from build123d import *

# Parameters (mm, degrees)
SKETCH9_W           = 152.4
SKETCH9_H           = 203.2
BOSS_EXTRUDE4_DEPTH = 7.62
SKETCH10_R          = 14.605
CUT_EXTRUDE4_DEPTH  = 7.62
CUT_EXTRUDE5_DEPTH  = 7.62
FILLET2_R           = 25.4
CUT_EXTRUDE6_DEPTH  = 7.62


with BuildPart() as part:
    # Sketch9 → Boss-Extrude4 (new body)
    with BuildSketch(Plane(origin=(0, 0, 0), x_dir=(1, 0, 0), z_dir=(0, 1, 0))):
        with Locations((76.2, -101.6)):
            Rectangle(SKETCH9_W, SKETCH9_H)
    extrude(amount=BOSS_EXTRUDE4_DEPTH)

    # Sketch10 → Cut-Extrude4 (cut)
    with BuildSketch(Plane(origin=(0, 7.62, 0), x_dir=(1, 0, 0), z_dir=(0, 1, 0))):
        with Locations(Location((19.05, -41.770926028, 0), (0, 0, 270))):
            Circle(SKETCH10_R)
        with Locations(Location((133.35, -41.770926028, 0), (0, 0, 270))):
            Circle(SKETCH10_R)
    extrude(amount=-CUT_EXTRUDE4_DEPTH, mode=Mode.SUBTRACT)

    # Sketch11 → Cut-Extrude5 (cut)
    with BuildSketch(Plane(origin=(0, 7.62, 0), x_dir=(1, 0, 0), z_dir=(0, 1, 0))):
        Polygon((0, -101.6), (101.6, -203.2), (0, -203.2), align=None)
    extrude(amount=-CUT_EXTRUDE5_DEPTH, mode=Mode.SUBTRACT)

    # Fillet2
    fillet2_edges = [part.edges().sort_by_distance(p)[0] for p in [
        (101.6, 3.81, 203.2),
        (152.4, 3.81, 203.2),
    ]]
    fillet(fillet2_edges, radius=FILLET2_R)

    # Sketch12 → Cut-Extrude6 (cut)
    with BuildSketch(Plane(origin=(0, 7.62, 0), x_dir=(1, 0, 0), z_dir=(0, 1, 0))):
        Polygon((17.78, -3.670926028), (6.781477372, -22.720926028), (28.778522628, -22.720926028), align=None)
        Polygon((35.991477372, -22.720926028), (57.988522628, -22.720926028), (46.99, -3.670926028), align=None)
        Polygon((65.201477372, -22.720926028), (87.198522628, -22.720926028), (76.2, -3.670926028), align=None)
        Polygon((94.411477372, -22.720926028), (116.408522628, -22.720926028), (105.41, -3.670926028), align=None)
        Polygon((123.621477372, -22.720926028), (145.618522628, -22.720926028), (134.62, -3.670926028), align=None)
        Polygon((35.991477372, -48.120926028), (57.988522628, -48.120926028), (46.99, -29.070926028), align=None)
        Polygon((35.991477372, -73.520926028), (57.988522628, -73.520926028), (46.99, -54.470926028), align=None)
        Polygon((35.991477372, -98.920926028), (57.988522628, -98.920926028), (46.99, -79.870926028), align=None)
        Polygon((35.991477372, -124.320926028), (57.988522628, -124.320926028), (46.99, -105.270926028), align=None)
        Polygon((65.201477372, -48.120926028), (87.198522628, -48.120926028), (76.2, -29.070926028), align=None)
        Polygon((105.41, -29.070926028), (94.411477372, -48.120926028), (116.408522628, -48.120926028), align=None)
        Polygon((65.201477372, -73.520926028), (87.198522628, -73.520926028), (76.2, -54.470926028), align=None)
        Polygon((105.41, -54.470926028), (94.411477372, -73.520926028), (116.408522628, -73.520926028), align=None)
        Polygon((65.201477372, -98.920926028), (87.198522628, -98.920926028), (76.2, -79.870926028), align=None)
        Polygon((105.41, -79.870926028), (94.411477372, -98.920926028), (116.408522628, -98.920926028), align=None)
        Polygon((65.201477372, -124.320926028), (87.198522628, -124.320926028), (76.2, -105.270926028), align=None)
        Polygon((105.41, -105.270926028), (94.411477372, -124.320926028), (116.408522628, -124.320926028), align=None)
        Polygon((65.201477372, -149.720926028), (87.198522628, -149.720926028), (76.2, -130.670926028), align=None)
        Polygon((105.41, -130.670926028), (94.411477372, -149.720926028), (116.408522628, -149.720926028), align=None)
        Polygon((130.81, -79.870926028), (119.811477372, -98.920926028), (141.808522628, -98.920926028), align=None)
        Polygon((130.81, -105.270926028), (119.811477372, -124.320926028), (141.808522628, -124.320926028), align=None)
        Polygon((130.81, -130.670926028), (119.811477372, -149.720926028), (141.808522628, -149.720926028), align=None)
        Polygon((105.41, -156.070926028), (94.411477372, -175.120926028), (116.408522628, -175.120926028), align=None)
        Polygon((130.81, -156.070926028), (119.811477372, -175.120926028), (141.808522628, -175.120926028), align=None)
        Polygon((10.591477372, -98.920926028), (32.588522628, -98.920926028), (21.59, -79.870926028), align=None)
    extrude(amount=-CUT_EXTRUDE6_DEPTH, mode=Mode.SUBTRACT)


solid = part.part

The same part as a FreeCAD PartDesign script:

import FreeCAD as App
import Part
import Sketcher

V = App.Vector
Q = App.Units.Quantity


def edges_at(feature, points):
    """Names of the edges that pass closest to the given points."""
    edges = feature.Shape.Edges
    near = lambda p: min(range(len(edges)), key=lambda i: edges[i].distToShape(Part.Vertex(*p))[0])
    return sorted({f"Edge{near(p) + 1}" for p in points})


def add_polygon(sketch, points):
    """Adds a closed chain of lines whose ends are joined by coincident constraints."""
    first, n = sketch.GeometryCount, len(points)
    for a, b in zip(points, points[1:] + points[:1]):
        sketch.addGeometry(Part.LineSegment(App.Vector(*a, 0), App.Vector(*b, 0)), False)
    for i in range(n):
        sketch.addConstraint(Sketcher.Constraint("Coincident", first + i, 2, first + (i + 1) % n, 1))

doc = App.newDocument("Part")
params = doc.addObject("Spreadsheet::Sheet", "Params")
for row, (alias, value) in enumerate([
    ("sketch1_width", "6 in"),
    ("sketch1_height", "8 in"),
    ("pad1_length", "0.3 in"),
    ("sketch2_diameter", "1.15 in"),
    ("pocket1_length", "0.3 in"),
    ("sketch3_width", "4 in"),
    ("pocket2_length", "0.3 in"),
    ("fillet_radius", "1 in"),
    ("pocket3_length", "0.3 in"),
], start=1):
    params.set(f"A{row}", alias)
    params.set(f"B{row}", "=" + value)
    params.setAlias(f"B{row}", alias)

body = doc.addObject("PartDesign::Body", "Body")

# Sketch on XZ plane
sketch1 = body.newObject("Sketcher::SketchObject", "Sketch")
sketch1.AttachmentSupport = (doc.getObject("XZ_Plane"), [""])
sketch1.MapMode = "FlatFace"
add_polygon(sketch1, [(0, 0), (0, 203), (152, 203), (152, 0)])  # lines 0-3
sketch1.addConstraint([
    Sketcher.Constraint("Vertical", 0),
    Sketcher.Constraint("Horizontal", 1),
    Sketcher.Constraint("Vertical", 2),
    Sketcher.Constraint("Horizontal", 3),
    Sketcher.Constraint("Coincident", 3, 2, -1, 1),
    Sketcher.Constraint("DistanceX", 1, 1, 1, 2, Q("6 in")),
    Sketcher.Constraint("DistanceY", 0, 1, 0, 2, Q("8 in")),
])
sketch1.setExpression("Constraints[9]", "Params.sketch1_width")
sketch1.setExpression("Constraints[10]", "Params.sketch1_height")
pad1 = body.newObject("PartDesign::Pad", "Pad")
pad1.Profile = sketch1
pad1.setExpression("Length", "Params.pad1_length")
pad1.Reversed = True

# Sketch on XZ plane
sketch2 = body.newObject("Sketcher::SketchObject", "Sketch001")
sketch2.AttachmentSupport = (doc.getObject("XZ_Plane"), [""])
sketch2.MapMode = "FlatFace"
sketch2.AttachmentOffset = App.Placement(V(0, 0, -0.3 * 25.4), App.Rotation())
sketch2.addGeometry([
    Part.Circle(V(19, 42, 0), V(0, 0, 1), 15),
    Part.Circle(V(133, 42, 0), V(0, 0, 1), 15),
], False)
sketch2.addConstraint([
    Sketcher.Constraint("Equal", 0, 1),
    Sketcher.Constraint("Horizontal", 0, 3, 1, 3),
    Sketcher.Constraint("Diameter", 0, Q("1.15 in")),
    Sketcher.Constraint("DistanceX", 0, 3, 1, 3, Q("4.5 in")),
    Sketcher.Constraint("DistanceX", -1, 1, 0, 3, Q("0.75 in")),
    Sketcher.Constraint("DistanceY", -1, 1, 0, 3, Q("41.770926 mm")),
])
sketch2.setExpression("Constraints[2]", "Params.sketch2_diameter")
pocket1 = body.newObject("PartDesign::Pocket", "Pocket")
pocket1.Profile = sketch2
pocket1.setExpression("Length", "Params.pocket1_length")
pocket1.Reversed = True

# Sketch on XZ plane
sketch3 = body.newObject("Sketcher::SketchObject", "Sketch002")
sketch3.AttachmentSupport = (doc.getObject("XZ_Plane"), [""])
sketch3.MapMode = "FlatFace"
sketch3.AttachmentOffset = App.Placement(V(0, 0, -0.3 * 25.4), App.Rotation())
add_polygon(sketch3, [(102, 203), (0, 102), (0, 203)])  # lines 0-2
sketch3.addConstraint([
    Sketcher.Constraint("Vertical", 1),
    Sketcher.Constraint("Horizontal", 2),
    Sketcher.Constraint("PointOnObject", 0, 2, -2),
    Sketcher.Constraint("Equal", 2, 1),
    Sketcher.Constraint("DistanceX", 2, 1, 2, 2, Q("4 in")),
    Sketcher.Constraint("DistanceY", -1, 1, 0, 2, Q("4 in")),
])
sketch3.setExpression("Constraints[7]", "Params.sketch3_width")
pocket2 = body.newObject("PartDesign::Pocket", "Pocket001")
pocket2.Profile = sketch3
pocket2.setExpression("Length", "Params.pocket2_length")
pocket2.Reversed = True
doc.recompute()

fillet = body.newObject("PartDesign::Fillet", "Fillet")
fillet.Base = (pocket2, edges_at(pocket2, [(101.6, 3.81, 203.2), (152.4, 3.81, 203.2)]))
fillet.setExpression("Radius", "Params.fillet_radius")

# Sketch on XZ plane
sketch4 = body.newObject("Sketcher::SketchObject", "Sketch003")
sketch4.AttachmentSupport = (doc.getObject("XZ_Plane"), [""])
sketch4.MapMode = "FlatFace"
sketch4.AttachmentOffset = App.Placement(V(0, 0, -0.3 * 25.4), App.Rotation())
add_polygon(sketch4, [(18, 4), (7, 23), (29, 23)])  # lines 0-2
add_polygon(sketch4, [(36, 23), (58, 23), (47, 4)])  # lines 3-5
add_polygon(sketch4, [(65, 23), (87, 23), (76, 4)])  # lines 6-8
add_polygon(sketch4, [(94, 23), (116, 23), (105, 4)])  # lines 9-11
add_polygon(sketch4, [(124, 23), (146, 23), (135, 4)])  # lines 12-14
add_polygon(sketch4, [(36, 48), (58, 48), (47, 29)])  # lines 15-17
add_polygon(sketch4, [(36, 74), (58, 74), (47, 54)])  # lines 18-20
add_polygon(sketch4, [(36, 99), (58, 99), (47, 80)])  # lines 21-23
add_polygon(sketch4, [(36, 124), (58, 124), (47, 105)])  # lines 24-26
add_polygon(sketch4, [(65, 48), (87, 48), (76, 29)])  # lines 27-29
add_polygon(sketch4, [(105, 29), (94, 48), (116, 48)])  # lines 30-32
add_polygon(sketch4, [(65, 74), (87, 74), (76, 54)])  # lines 33-35
add_polygon(sketch4, [(105, 54), (94, 74), (116, 74)])  # lines 36-38
add_polygon(sketch4, [(65, 99), (87, 99), (76, 80)])  # lines 39-41
add_polygon(sketch4, [(105, 80), (94, 99), (116, 99)])  # lines 42-44
add_polygon(sketch4, [(65, 124), (87, 124), (76, 105)])  # lines 45-47
add_polygon(sketch4, [(105, 105), (94, 124), (116, 124)])  # lines 48-50
add_polygon(sketch4, [(65, 150), (87, 150), (76, 131)])  # lines 51-53
add_polygon(sketch4, [(105, 131), (94, 150), (116, 150)])  # lines 54-56
add_polygon(sketch4, [(131, 80), (120, 99), (142, 99)])  # lines 57-59
add_polygon(sketch4, [(131, 105), (120, 124), (142, 124)])  # lines 60-62
add_polygon(sketch4, [(131, 131), (120, 150), (142, 150)])  # lines 63-65
add_polygon(sketch4, [(105, 156), (94, 175), (116, 175)])  # lines 66-68
add_polygon(sketch4, [(131, 156), (120, 175), (142, 175)])  # lines 69-71
add_polygon(sketch4, [(11, 99), (33, 99), (22, 80)])  # lines 72-74
sketch4.addConstraint([
    Sketcher.Constraint("Horizontal", 1),
    Sketcher.Constraint("Horizontal", 3),
    Sketcher.Constraint("Horizontal", 6),
    Sketcher.Constraint("Horizontal", 9),
    Sketcher.Constraint("Horizontal", 12),
    Sketcher.Constraint("Horizontal", 15),
    Sketcher.Constraint("Horizontal", 18),
    Sketcher.Constraint("Horizontal", 21),
    Sketcher.Constraint("Horizontal", 24),
    Sketcher.Constraint("Horizontal", 27),
    Sketcher.Constraint("Horizontal", 31),
    Sketcher.Constraint("Horizontal", 33),
    Sketcher.Constraint("Horizontal", 37),
    Sketcher.Constraint("Horizontal", 39),
    Sketcher.Constraint("Horizontal", 43),
    Sketcher.Constraint("Horizontal", 45),
    Sketcher.Constraint("Horizontal", 49),
    Sketcher.Constraint("Horizontal", 51),
    Sketcher.Constraint("Horizontal", 55),
    Sketcher.Constraint("Horizontal", 58),
    Sketcher.Constraint("Horizontal", 61),
    Sketcher.Constraint("Horizontal", 64),
    Sketcher.Constraint("Horizontal", 67),
    Sketcher.Constraint("Horizontal", 70),
    Sketcher.Constraint("Horizontal", 72),
    Sketcher.Constraint("Parallel", 2, 4),
    Sketcher.Constraint("Parallel", 0, 5),
    Sketcher.Constraint("Parallel", 4, 7),
    Sketcher.Constraint("Parallel", 5, 8),
    Sketcher.Constraint("Parallel", 7, 10),
    Sketcher.Constraint("Parallel", 8, 11),
    Sketcher.Constraint("Parallel", 10, 13),
    Sketcher.Constraint("Parallel", 11, 14),
    Sketcher.Constraint("Parallel", 13, 16),
    Sketcher.Constraint("Parallel", 14, 17),
    Sketcher.Constraint("Parallel", 16, 19),
    Sketcher.Constraint("Parallel", 17, 20),
    Sketcher.Constraint("Parallel", 19, 22),
    Sketcher.Constraint("Parallel", 20, 23),
    Sketcher.Constraint("Parallel", 22, 25),
    Sketcher.Constraint("Parallel", 23, 26),
    Sketcher.Constraint("Parallel", 25, 28),
    Sketcher.Constraint("Parallel", 26, 29),
    Sketcher.Constraint("Parallel", 29, 30),
    Sketcher.Constraint("Parallel", 28, 32),
    Sketcher.Constraint("Parallel", 32, 34),
    Sketcher.Constraint("Parallel", 30, 35),
    Sketcher.Constraint("Parallel", 35, 36),
    Sketcher.Constraint("Parallel", 34, 38),
    Sketcher.Constraint("Parallel", 38, 40),
    Sketcher.Constraint("Parallel", 36, 41),
    Sketcher.Constraint("Parallel", 41, 42),
    Sketcher.Constraint("Parallel", 40, 44),
    Sketcher.Constraint("Parallel", 44, 46),
    Sketcher.Constraint("Parallel", 42, 47),
    Sketcher.Constraint("Parallel", 47, 48),
    Sketcher.Constraint("Parallel", 46, 50),
    Sketcher.Constraint("Parallel", 50, 52),
    Sketcher.Constraint("Parallel", 48, 53),
    Sketcher.Constraint("Parallel", 53, 54),
    Sketcher.Constraint("Parallel", 52, 56),
    Sketcher.Constraint("Parallel", 54, 57),
    Sketcher.Constraint("Parallel", 56, 59),
    Sketcher.Constraint("Parallel", 57, 60),
    Sketcher.Constraint("Parallel", 59, 62),
    Sketcher.Constraint("Parallel", 60, 63),
    Sketcher.Constraint("Parallel", 62, 65),
    Sketcher.Constraint("Parallel", 63, 66),
    Sketcher.Constraint("Parallel", 65, 68),
    Sketcher.Constraint("Parallel", 66, 69),
    Sketcher.Constraint("Parallel", 68, 71),
    Sketcher.Constraint("Parallel", 71, 73),
    Sketcher.Constraint("Parallel", 69, 74),
    Sketcher.Constraint("Horizontal", 1, 2, 3, 2),
    Sketcher.Constraint("Horizontal", 2, 2, 4, 2),
    Sketcher.Constraint("Horizontal", 5, 2, 6, 2),
    Sketcher.Constraint("Horizontal", 4, 2, 7, 2),
    Sketcher.Constraint("Horizontal", 8, 2, 9, 2),
    Sketcher.Constraint("Horizontal", 7, 2, 10, 2),
    Sketcher.Constraint("Horizontal", 11, 2, 12, 2),
    Sketcher.Constraint("Horizontal", 10, 2, 13, 2),
    Sketcher.Constraint("Horizontal", 17, 2, 27, 2),
    Sketcher.Constraint("Horizontal", 16, 2, 28, 2),
    Sketcher.Constraint("Horizontal", 29, 2, 30, 2),
    Sketcher.Constraint("Horizontal", 28, 2, 32, 2),
    Sketcher.Constraint("Horizontal", 20, 2, 33, 2),
    Sketcher.Constraint("Horizontal", 19, 2, 34, 2),
    Sketcher.Constraint("Horizontal", 35, 2, 36, 2),
    Sketcher.Constraint("Horizontal", 34, 2, 38, 2),
    Sketcher.Constraint("Horizontal", 23, 2, 39, 2),
    Sketcher.Constraint("Horizontal", 22, 2, 40, 2),
    Sketcher.Constraint("Horizontal", 41, 2, 42, 2),
    Sketcher.Constraint("Horizontal", 40, 2, 44, 2),
    Sketcher.Constraint("Horizontal", 26, 2, 45, 2),
    Sketcher.Constraint("Horizontal", 25, 2, 46, 2),
    Sketcher.Constraint("Horizontal", 47, 2, 48, 2),
    Sketcher.Constraint("Horizontal", 46, 2, 50, 2),
    Sketcher.Constraint("Horizontal", 53, 2, 54, 2),
    Sketcher.Constraint("Horizontal", 52, 2, 56, 2),
    Sketcher.Constraint("Horizontal", 43, 2, 57, 2),
    Sketcher.Constraint("Horizontal", 44, 2, 59, 2),
    Sketcher.Constraint("Horizontal", 49, 2, 60, 2),
    Sketcher.Constraint("Horizontal", 50, 2, 62, 2),
    Sketcher.Constraint("Horizontal", 55, 2, 63, 2),
    Sketcher.Constraint("Horizontal", 56, 2, 65, 2),
    Sketcher.Constraint("Horizontal", 67, 2, 69, 2),
    Sketcher.Constraint("Horizontal", 68, 2, 71, 2),
    Sketcher.Constraint("Horizontal", 58, 2, 72, 2),
    Sketcher.Constraint("Horizontal", 59, 2, 73, 2),
    Sketcher.Constraint("Vertical", 3, 2, 15, 2),
    Sketcher.Constraint("Vertical", 4, 2, 16, 2),
    Sketcher.Constraint("Vertical", 15, 2, 18, 2),
    Sketcher.Constraint("Vertical", 16, 2, 19, 2),
    Sketcher.Constraint("Vertical", 18, 2, 21, 2),
    Sketcher.Constraint("Vertical", 19, 2, 22, 2),
    Sketcher.Constraint("Vertical", 21, 2, 24, 2),
    Sketcher.Constraint("Vertical", 22, 2, 25, 2),
    Sketcher.Constraint("Vertical", 6, 2, 27, 2),
    Sketcher.Constraint("Vertical", 11, 2, 30, 2),
    Sketcher.Constraint("Vertical", 27, 2, 33, 2),
    Sketcher.Constraint("Vertical", 30, 2, 36, 2),
    Sketcher.Constraint("Vertical", 33, 2, 39, 2),
    Sketcher.Constraint("Vertical", 36, 2, 42, 2),
    Sketcher.Constraint("Vertical", 39, 2, 45, 2),
    Sketcher.Constraint("Vertical", 42, 2, 48, 2),
    Sketcher.Constraint("Vertical", 45, 2, 51, 2),
    Sketcher.Constraint("Vertical", 46, 2, 52, 2),
    Sketcher.Constraint("Vertical", 48, 2, 54, 2),
    Sketcher.Constraint("Vertical", 57, 2, 60, 2),
    Sketcher.Constraint("Vertical", 60, 2, 63, 2),
    Sketcher.Constraint("Vertical", 54, 2, 66, 2),
    Sketcher.Constraint("Vertical", 55, 2, 67, 2),
    Sketcher.Constraint("Vertical", 63, 2, 69, 2),
    Sketcher.Constraint("Equal", 0, 2),
    Sketcher.Constraint("DistanceX", -1, 1, 7, 2, Q("3 in")),
    Sketcher.Constraint("Angle", 0, Q("120 deg")),
    Sketcher.Constraint("DistanceX", -1, 1, 2, 2, Q("0.7 in")),
    Sketcher.Constraint("DistanceX", -1, 1, 13, 2, Q("5.3 in")),
    Sketcher.Constraint("DistanceX", -1, 1, 4, 2, Q("1.85 in")),
    Sketcher.Constraint("DistanceX", -1, 1, 10, 2, Q("4.15 in")),
    Sketcher.Constraint("DistanceX", -1, 1, 59, 2, Q("5.15 in")),
    Sketcher.Constraint("DistanceX", -1, 1, 73, 2, Q("0.85 in")),
    Sketcher.Constraint("DistanceX", 1, 1, 1, 2, Q("21.997045 mm")),
    Sketcher.Constraint("DistanceY", -1, 1, 0, 2, Q("22.720926 mm")),
    Sketcher.Constraint("DistanceY", -1, 1, 15, 2, Q("48.120926 mm")),
    Sketcher.Constraint("DistanceY", -1, 1, 18, 2, Q("73.520926 mm")),
    Sketcher.Constraint("DistanceY", -1, 1, 21, 2, Q("98.920926 mm")),
    Sketcher.Constraint("DistanceY", -1, 1, 24, 2, Q("124.320926 mm")),
    Sketcher.Constraint("DistanceY", -1, 1, 51, 2, Q("149.720926 mm")),
    Sketcher.Constraint("DistanceY", -1, 1, 66, 2, Q("175.120926 mm")),
])
pocket3 = body.newObject("PartDesign::Pocket", "Pocket002")
pocket3.Profile = sketch4
pocket3.setExpression("Length", "Params.pocket3_length")
pocket3.Reversed = True

doc.recompute()
